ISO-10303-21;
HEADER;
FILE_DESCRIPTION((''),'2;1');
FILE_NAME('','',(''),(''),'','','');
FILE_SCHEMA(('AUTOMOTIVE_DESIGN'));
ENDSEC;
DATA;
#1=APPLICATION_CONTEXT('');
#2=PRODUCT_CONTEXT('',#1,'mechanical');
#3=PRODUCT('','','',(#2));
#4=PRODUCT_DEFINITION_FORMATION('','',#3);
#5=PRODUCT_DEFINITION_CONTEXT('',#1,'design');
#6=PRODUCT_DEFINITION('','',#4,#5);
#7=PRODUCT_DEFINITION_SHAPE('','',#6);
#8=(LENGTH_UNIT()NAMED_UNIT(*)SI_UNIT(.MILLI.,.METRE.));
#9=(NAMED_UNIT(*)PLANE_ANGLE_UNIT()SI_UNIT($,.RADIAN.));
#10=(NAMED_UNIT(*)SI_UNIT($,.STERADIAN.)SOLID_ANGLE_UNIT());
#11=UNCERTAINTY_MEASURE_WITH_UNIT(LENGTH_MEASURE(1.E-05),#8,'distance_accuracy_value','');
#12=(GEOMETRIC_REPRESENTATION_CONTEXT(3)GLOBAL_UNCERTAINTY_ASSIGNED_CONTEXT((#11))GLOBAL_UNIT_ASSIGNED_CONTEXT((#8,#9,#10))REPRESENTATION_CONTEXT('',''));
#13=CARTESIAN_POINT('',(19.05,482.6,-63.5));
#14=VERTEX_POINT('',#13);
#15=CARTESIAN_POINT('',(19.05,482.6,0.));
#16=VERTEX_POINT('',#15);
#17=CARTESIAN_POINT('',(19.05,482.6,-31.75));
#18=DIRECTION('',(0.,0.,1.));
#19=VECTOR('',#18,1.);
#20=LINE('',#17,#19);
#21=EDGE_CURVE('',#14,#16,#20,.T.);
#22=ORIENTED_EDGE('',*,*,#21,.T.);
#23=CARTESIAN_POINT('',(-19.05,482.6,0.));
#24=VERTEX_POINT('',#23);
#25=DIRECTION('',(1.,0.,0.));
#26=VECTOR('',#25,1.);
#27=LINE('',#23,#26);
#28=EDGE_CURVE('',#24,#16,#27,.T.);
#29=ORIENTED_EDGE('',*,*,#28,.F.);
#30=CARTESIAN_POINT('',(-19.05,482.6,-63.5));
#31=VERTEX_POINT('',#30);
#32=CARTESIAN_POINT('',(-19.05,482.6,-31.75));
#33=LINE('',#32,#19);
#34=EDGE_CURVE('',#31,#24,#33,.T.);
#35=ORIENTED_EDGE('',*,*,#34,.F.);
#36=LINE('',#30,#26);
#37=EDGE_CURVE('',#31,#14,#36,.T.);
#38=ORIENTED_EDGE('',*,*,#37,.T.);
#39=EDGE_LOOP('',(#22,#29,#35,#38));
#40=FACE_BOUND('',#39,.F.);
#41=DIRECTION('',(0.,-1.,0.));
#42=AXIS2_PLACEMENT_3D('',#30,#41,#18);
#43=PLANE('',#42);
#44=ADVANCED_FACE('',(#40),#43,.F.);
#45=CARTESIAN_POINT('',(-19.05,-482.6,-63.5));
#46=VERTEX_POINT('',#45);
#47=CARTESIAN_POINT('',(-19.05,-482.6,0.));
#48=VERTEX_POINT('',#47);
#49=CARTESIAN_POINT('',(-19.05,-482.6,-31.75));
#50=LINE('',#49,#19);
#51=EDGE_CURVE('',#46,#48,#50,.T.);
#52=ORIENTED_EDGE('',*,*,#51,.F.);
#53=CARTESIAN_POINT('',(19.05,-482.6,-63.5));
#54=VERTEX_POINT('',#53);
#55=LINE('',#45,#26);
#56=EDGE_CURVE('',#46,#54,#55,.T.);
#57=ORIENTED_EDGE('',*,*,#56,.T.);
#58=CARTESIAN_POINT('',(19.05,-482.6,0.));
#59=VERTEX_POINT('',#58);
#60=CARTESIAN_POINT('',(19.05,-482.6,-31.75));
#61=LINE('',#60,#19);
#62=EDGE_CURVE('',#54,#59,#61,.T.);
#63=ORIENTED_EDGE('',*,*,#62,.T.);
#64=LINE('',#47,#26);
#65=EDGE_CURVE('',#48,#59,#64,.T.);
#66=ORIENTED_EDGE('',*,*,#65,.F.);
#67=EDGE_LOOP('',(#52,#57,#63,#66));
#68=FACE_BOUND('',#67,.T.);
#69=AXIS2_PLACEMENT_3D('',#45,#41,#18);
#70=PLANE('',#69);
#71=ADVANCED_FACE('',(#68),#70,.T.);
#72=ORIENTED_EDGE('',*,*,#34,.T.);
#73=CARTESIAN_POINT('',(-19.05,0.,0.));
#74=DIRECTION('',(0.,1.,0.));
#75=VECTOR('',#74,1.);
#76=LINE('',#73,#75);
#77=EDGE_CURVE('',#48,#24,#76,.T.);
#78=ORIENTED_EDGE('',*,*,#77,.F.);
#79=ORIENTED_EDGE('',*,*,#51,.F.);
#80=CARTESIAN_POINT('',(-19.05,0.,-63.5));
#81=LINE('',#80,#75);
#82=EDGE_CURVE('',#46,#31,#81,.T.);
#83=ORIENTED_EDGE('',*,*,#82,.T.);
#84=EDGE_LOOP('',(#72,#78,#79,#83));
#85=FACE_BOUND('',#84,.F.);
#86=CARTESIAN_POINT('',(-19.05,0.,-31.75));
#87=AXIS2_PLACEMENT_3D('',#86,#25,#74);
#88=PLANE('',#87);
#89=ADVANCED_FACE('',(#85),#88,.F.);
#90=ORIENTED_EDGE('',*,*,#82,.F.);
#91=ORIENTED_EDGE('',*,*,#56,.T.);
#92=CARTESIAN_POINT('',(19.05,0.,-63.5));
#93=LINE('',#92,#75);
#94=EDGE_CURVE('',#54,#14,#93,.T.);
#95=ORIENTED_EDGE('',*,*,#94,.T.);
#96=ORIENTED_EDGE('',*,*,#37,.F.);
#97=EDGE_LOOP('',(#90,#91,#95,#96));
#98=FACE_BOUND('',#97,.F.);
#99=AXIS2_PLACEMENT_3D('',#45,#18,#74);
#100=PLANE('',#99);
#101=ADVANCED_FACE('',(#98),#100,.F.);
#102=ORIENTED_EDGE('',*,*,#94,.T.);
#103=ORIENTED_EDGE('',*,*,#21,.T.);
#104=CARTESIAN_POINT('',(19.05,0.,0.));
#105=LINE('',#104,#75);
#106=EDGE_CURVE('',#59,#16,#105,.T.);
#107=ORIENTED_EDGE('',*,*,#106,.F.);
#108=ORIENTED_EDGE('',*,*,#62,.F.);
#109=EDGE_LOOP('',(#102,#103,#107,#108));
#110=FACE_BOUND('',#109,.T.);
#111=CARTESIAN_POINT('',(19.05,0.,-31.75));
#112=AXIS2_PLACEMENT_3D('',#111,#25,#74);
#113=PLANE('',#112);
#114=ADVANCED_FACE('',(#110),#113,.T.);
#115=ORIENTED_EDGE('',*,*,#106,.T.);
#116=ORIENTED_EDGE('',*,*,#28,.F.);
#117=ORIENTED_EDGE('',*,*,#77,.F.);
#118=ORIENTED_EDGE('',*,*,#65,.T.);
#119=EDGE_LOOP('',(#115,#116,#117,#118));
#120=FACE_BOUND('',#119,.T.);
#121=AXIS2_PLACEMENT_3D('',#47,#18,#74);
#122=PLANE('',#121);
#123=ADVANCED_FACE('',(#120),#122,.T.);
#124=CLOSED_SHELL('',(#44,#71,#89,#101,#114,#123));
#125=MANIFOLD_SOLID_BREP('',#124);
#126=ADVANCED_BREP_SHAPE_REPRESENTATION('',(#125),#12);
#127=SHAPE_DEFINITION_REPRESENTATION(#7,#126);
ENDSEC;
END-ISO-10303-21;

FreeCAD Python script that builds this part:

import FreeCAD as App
import Part
import Sketcher

V = App.Vector
Q = App.Units.Quantity

doc = App.newDocument("Part")
body = doc.addObject("PartDesign::Body", "Body")

# Sketch on YZ plane
sketch1 = body.newObject("Sketcher::SketchObject", "Sketch")
sketch1.AttachmentSupport = (doc.getObject("YZ_Plane"), [""])
sketch1.MapMode = "FlatFace"
sketch1.addGeometry(Part.LineSegment(V(-483, 32, 0), V(-483, -32, 0)), False)
sketch1.addGeometry(Part.LineSegment(V(-483, -32, 0), V(483, -32, 0)), False)
sketch1.addGeometry(Part.LineSegment(V(483, -32, 0), V(483, 32, 0)), False)
sketch1.addGeometry(Part.LineSegment(V(483, 32, 0), V(-483, 32, 0)), False)
sketch1.addConstraint(Sketcher.Constraint("Coincident", 0, 2, 1, 1))
sketch1.addConstraint(Sketcher.Constraint("Coincident", 1, 2, 2, 1))
sketch1.addConstraint(Sketcher.Constraint("Coincident", 2, 2, 3, 1))
sketch1.addConstraint(Sketcher.Constraint("Coincident", 3, 2, 0, 1))
sketch1.addConstraint(Sketcher.Constraint("Vertical", 0))
sketch1.addConstraint(Sketcher.Constraint("Horizontal", 1))
sketch1.addConstraint(Sketcher.Constraint("Vertical", 2))
sketch1.addConstraint(Sketcher.Constraint("Horizontal", 3))
sketch1.addConstraint(Sketcher.Constraint("Symmetric", 0, 2, 2, 2, -1, 1))
sketch1.addConstraint(Sketcher.Constraint("DistanceX", 1, 1, 1, 2, Q("38 in")))
sketch1.addConstraint(Sketcher.Constraint("DistanceY", 0, 2, 0, 1, Q("2.5 in")))
pad1 = body.newObject("PartDesign::Pad", "Pad")
pad1.Profile = sketch1
pad1.Length = Q("1.5 in")
body2 = doc.addObject("PartDesign::Body", "Body001")
doc.recompute()

body.Placement = App.Placement(V(-19.05, 0, -31.75), App.Rotation(V(0, 0, 1), 0))
boolean = body2.newObject("PartDesign::Boolean", "Boolean")
boolean.Type = "Fuse"
boolean.addObjects([body])

doc.recompute()
